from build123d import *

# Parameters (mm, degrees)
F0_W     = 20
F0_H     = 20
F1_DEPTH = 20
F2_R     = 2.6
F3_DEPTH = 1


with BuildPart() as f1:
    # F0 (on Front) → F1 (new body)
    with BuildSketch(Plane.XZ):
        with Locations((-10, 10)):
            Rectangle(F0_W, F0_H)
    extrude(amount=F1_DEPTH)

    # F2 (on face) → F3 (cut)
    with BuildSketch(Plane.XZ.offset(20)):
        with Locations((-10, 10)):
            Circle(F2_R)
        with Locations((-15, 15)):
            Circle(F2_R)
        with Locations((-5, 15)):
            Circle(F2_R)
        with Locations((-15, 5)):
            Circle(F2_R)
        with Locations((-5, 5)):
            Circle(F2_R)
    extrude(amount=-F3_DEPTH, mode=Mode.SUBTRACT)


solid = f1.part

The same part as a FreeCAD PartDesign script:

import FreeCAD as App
import Part
import Sketcher

V = App.Vector
Q = App.Units.Quantity

doc = App.newDocument("Part")
body = doc.addObject("PartDesign::Body", "Body")

# Sketch on XZ plane
sketch1 = body.newObject("Sketcher::SketchObject", "Sketch")
sketch1.AttachmentSupport = (doc.getObject("XZ_Plane"), [""])
sketch1.MapMode = "FlatFace"
sketch1.addGeometry([
    Part.LineSegment(V(-20, 20, 0), V(-20, 0, 0)),
    Part.LineSegment(V(-20, 0, 0), V(0, 0, 0)),
    Part.LineSegment(V(0, 0, 0), V(0, 20, 0)),
    Part.LineSegment(V(0, 20, 0), V(-20, 20, 0)),
], False)
sketch1.addConstraint([
    Sketcher.Constraint("Coincident", 0, 2, 1, 1),
    Sketcher.Constraint("Coincident", 1, 2, 2, 1),
    Sketcher.Constraint("Coincident", 2, 2, 3, 1),
    Sketcher.Constraint("Coincident", 3, 2, 0, 1),
    Sketcher.Constraint("Vertical", 0),
    Sketcher.Constraint("Horizontal", 1),
    Sketcher.Constraint("Vertical", 2),
    Sketcher.Constraint("Horizontal", 3),
    Sketcher.Constraint("Coincident", 1, 2, -1, 1),
    Sketcher.Constraint("Equal", 3, 0),
    Sketcher.Constraint("DistanceX", 1, 1, 1, 2, Q("20 mm")),
])
pad1 = body.newObject("PartDesign::Pad", "Pad")
pad1.Profile = sketch1
pad1.Length = 20

# Sketch on XZ plane
sketch2 = body.newObject("Sketcher::SketchObject", "Sketch001")
sketch2.AttachmentSupport = (doc.getObject("XZ_Plane"), [""])
sketch2.MapMode = "FlatFace"
sketch2.AttachmentOffset = App.Placement(V(0, 0, 20), App.Rotation())
sketch2.addGeometry([
    Part.Circle(V(-10, 10, 0), V(0, 0, 1), 2.6),  # 0
    Part.Circle(V(-15, 15, 0), V(0, 0, 1), 2.6),  # 1
    Part.Circle(V(-5, 15, 0), V(0, 0, 1), 2.6),  # 2
    Part.Circle(V(-15, 5, 0), V(0, 0, 1), 2.6),  # 3
    Part.Circle(V(-5, 5, 0), V(0, 0, 1), 2.6),  # 4
], False)
sketch2.addConstraint([
    Sketcher.Constraint("Equal", 0, 1),
    Sketcher.Constraint("Equal", 1, 2),
    Sketcher.Constraint("Equal", 2, 3),
    Sketcher.Constraint("Equal", 3, 4),
    Sketcher.Constraint("Horizontal", 1, 3, 2, 3),
    Sketcher.Constraint("Horizontal", 3, 3, 4, 3),
    Sketcher.Constraint("Vertical", 1, 3, 3, 3),
    Sketcher.Constraint("Vertical", 2, 3, 4, 3),
    Sketcher.Constraint("Diameter", 0, Q("5.2 mm")),
    Sketcher.Constraint("DistanceX", 0, 3, -1, 1, Q("10 mm")),
    Sketcher.Constraint("DistanceY", -1, 1, 0, 3, Q("10 mm")),
    Sketcher.Constraint("DistanceX", 1, 3, -1, 1, Q("15 mm")),
    Sketcher.Constraint("DistanceY", -1, 1, 1, 3, Q("15 mm")),
    Sketcher.Constraint("DistanceX", 2, 3, -1, 1, Q("5 mm")),
    Sketcher.Constraint("DistanceY", -1, 1, 3, 3, Q("5 mm")),
])
pocket1 = body.newObject("PartDesign::Pocket", "Pocket")
pocket1.Profile = sketch2
pocket1.Length = 1

doc.recompute()
